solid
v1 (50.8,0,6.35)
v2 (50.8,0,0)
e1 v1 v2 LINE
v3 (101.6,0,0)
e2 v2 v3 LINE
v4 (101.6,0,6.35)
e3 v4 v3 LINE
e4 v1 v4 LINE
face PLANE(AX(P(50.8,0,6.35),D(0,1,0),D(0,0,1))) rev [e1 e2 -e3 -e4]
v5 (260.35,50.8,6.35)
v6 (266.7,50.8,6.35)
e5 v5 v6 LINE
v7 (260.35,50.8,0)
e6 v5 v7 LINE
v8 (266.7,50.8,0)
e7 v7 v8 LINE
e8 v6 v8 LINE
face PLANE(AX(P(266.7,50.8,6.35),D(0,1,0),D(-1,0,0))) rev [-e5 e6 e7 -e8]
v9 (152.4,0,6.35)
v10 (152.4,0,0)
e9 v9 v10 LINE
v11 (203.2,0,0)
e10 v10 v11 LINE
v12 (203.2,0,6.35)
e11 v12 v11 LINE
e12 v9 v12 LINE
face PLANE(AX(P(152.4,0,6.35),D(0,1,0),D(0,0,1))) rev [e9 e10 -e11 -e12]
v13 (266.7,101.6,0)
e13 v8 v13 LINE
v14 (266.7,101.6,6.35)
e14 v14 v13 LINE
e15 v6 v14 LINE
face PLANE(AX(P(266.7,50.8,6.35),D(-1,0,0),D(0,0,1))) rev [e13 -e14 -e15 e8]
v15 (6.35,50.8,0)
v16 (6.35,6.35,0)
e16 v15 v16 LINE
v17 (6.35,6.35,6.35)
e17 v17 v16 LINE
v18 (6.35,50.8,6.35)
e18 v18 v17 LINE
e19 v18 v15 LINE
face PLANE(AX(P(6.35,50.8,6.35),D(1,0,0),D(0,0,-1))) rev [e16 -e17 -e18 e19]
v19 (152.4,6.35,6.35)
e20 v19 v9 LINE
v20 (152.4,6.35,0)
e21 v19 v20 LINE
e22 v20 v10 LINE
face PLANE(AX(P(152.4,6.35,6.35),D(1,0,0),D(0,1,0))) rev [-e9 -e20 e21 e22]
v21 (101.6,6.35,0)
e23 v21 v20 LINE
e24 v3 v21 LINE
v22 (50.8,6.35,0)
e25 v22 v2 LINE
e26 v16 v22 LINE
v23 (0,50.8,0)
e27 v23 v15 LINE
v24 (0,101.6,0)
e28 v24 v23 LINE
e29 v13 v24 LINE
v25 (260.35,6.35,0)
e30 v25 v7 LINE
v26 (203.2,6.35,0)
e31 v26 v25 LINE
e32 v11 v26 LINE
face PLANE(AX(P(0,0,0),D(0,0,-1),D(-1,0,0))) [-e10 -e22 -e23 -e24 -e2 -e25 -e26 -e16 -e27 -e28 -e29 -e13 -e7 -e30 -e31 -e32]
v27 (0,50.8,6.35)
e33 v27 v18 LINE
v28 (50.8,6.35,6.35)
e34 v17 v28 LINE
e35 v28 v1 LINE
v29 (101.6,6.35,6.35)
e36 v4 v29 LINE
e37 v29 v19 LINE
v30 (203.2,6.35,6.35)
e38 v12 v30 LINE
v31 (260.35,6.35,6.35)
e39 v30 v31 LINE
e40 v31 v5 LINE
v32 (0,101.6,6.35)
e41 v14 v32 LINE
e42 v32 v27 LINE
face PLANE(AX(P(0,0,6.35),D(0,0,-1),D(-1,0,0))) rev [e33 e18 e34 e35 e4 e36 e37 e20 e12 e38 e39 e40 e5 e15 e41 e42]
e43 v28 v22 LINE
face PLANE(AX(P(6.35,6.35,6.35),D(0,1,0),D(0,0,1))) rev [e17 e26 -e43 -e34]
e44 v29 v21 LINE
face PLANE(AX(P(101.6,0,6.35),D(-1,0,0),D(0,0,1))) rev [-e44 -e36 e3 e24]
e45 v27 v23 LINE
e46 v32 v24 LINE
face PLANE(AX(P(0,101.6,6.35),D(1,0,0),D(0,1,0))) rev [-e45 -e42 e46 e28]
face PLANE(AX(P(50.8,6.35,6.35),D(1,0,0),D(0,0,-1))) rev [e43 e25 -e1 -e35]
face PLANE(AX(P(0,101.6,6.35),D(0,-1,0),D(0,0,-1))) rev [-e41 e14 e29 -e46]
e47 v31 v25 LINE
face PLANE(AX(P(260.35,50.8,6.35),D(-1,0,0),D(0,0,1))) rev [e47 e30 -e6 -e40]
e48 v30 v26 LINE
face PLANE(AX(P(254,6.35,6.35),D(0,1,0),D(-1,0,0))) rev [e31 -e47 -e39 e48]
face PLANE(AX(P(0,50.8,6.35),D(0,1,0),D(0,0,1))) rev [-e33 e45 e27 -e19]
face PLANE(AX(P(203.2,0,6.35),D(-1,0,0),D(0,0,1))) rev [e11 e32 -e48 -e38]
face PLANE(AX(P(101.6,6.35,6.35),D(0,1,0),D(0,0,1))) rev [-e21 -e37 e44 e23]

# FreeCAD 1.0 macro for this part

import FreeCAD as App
import Part
import Sketcher
from FreeCAD import Vector
Q = App.Units.Quantity

doc = App.newDocument("Part")
params = doc.addObject("Spreadsheet::Sheet", "Params")
for row, (alias, value) in enumerate([
    ("sketch1_width", "2 in"),
    ("sketch1_width2", "10.5 in"),
    ("sketch1_width3", "0.25 in"),
    ("pad1_length", "0.25 in"),
], start=1):
    params.set(f"A{row}", alias)
    params.set(f"B{row}", "=" + value)
    params.setAlias(f"B{row}", alias)

body = doc.addObject("PartDesign::Body", "Body")

sketch1 = body.newObject("Sketcher::SketchObject", "Sketch")
sketch1.AttachmentSupport = (doc.getObject("XY_Plane"), [""])
sketch1.MapMode = "FlatFace"
sketch1.addGeometry(Part.LineSegment(Vector(0, 102, 0), Vector(0, 51, 0)), False)
sketch1.addGeometry(Part.LineSegment(Vector(0, 51, 0), Vector(6, 51, 0)), False)
sketch1.addGeometry(Part.LineSegment(Vector(6, 51, 0), Vector(6, 6, 0)), False)
sketch1.addGeometry(Part.LineSegment(Vector(6, 6, 0), Vector(51, 6, 0)), False)
sketch1.addGeometry(Part.LineSegment(Vector(51, 6, 0), Vector(51, 0, 0)), False)
sketch1.addGeometry(Part.LineSegment(Vector(51, 0, 0), Vector(102, 0, 0)), False)
sketch1.addGeometry(Part.LineSegment(Vector(102, 0, 0), Vector(102, 6, 0)), False)
sketch1.addGeometry(Part.LineSegment(Vector(102, 6, 0), Vector(152, 6, 0)), False)
sketch1.addGeometry(Part.LineSegment(Vector(152, 6, 0), Vector(152, 0, 0)), False)
sketch1.addGeometry(Part.LineSegment(Vector(152, 0, 0), Vector(203, 0, 0)), False)
sketch1.addGeometry(Part.LineSegment(Vector(203, 0, 0), Vector(203, 6, 0)), False)
sketch1.addGeometry(Part.LineSegment(Vector(203, 6, 0), Vector(260, 6, 0)), False)
sketch1.addGeometry(Part.LineSegment(Vector(260, 6, 0), Vector(260, 51, 0)), False)
sketch1.addGeometry(Part.LineSegment(Vector(260, 51, 0), Vector(267, 51, 0)), False)
sketch1.addGeometry(Part.LineSegment(Vector(267, 51, 0), Vector(267, 102, 0)), False)
sketch1.addGeometry(Part.LineSegment(Vector(267, 102, 0), Vector(0, 102, 0)), False)
sketch1.addConstraint(Sketcher.Constraint("Coincident", 0, 2, 1, 1))
sketch1.addConstraint(Sketcher.Constraint("Coincident", 1, 2, 2, 1))
sketch1.addConstraint(Sketcher.Constraint("Coincident", 2, 2, 3, 1))
sketch1.addConstraint(Sketcher.Constraint("Coincident", 3, 2, 4, 1))
sketch1.addConstraint(Sketcher.Constraint("Coincident", 4, 2, 5, 1))
sketch1.addConstraint(Sketcher.Constraint("Coincident", 5, 2, 6, 1))
sketch1.addConstraint(Sketcher.Constraint("Coincident", 6, 2, 7, 1))
sketch1.addConstraint(Sketcher.Constraint("Coincident", 7, 2, 8, 1))
sketch1.addConstraint(Sketcher.Constraint("Coincident", 8, 2, 9, 1))
sketch1.addConstraint(Sketcher.Constraint("Coincident", 9, 2, 10, 1))
sketch1.addConstraint(Sketcher.Constraint("Coincident", 10, 2, 11, 1))
sketch1.addConstraint(Sketcher.Constraint("Coincident", 11, 2, 12, 1))
sketch1.addConstraint(Sketcher.Constraint("Coincident", 12, 2, 13, 1))
sketch1.addConstraint(Sketcher.Constraint("Coincident", 13, 2, 14, 1))
sketch1.addConstraint(Sketcher.Constraint("Coincident", 14, 2, 15, 1))
sketch1.addConstraint(Sketcher.Constraint("Coincident", 15, 2, 0, 1))
sketch1.addConstraint(Sketcher.Constraint("Vertical", 0))
sketch1.addConstraint(Sketcher.Constraint("Horizontal", 1))
sketch1.addConstraint(Sketcher.Constraint("Vertical", 2))
sketch1.addConstraint(Sketcher.Constraint("Horizontal", 3))
sketch1.addConstraint(Sketcher.Constraint("Vertical", 4))
sketch1.addConstraint(Sketcher.Constraint("Horizontal", 5))
sketch1.addConstraint(Sketcher.Constraint("Vertical", 6))
sketch1.addConstraint(Sketcher.Constraint("Horizontal", 7))
sketch1.addConstraint(Sketcher.Constraint("Vertical", 8))
sketch1.addConstraint(Sketcher.Constraint("Horizontal", 9))
sketch1.addConstraint(Sketcher.Constraint("Vertical", 10))
sketch1.addConstraint(Sketcher.Constraint("Horizontal", 11))
sketch1.addConstraint(Sketcher.Constraint("Vertical", 12))
sketch1.addConstraint(Sketcher.Constraint("Horizontal", 13))
sketch1.addConstraint(Sketcher.Constraint("Vertical", 14))
sketch1.addConstraint(Sketcher.Constraint("Horizontal", 15))
sketch1.addConstraint(Sketcher.Constraint("PointOnObject", 0, 2, -2))
sketch1.addConstraint(Sketcher.Constraint("PointOnObject", 4, 2, -1))
sketch1.addConstraint(Sketcher.Constraint("PointOnObject", 8, 2, -1))
sketch1.addConstraint(Sketcher.Constraint("Horizontal", 3, 2, 6, 2))
sketch1.addConstraint(Sketcher.Constraint("Horizontal", 7, 2, 10, 2))
sketch1.addConstraint(Sketcher.Constraint("Horizontal", 1, 2, 12, 2))
sketch1.addConstraint(Sketcher.Constraint("Equal", 5, 7))
sketch1.addConstraint(Sketcher.Constraint("Equal", 7, 9))
sketch1.addConstraint(Sketcher.Constraint("Equal", 1, 13))
sketch1.addConstraint(Sketcher.Constraint("Equal", 9, 0))
sketch1.addConstraint(Sketcher.Constraint("Equal", 3, 2))
sketch1.addConstraint(Sketcher.Constraint("Equal", 13, 4))
sketch1.addConstraint(Sketcher.Constraint("DistanceX", 5, 1, 5, 2, Q("2 in")))
sketch1.addConstraint(Sketcher.Constraint("DistanceX", 15, 2, 15, 1, Q("10.5 in")))
sketch1.addConstraint(Sketcher.Constraint("DistanceY", -1, 1, 0, 2, Q("2 in")))
sketch1.addConstraint(Sketcher.Constraint("DistanceX", 1, 1, 1, 2, Q("0.25 in")))
sketch1.setExpression("Constraints[44]", "Params.sketch1_width")
sketch1.setExpression("Constraints[45]", "Params.sketch1_width2")
sketch1.setExpression("Constraints[47]", "Params.sketch1_width3")
pad1 = body.newObject("PartDesign::Pad", "Pad")
pad1.Profile = sketch1
pad1.setExpression("Length", "Params.pad1_length")

doc.recompute()
